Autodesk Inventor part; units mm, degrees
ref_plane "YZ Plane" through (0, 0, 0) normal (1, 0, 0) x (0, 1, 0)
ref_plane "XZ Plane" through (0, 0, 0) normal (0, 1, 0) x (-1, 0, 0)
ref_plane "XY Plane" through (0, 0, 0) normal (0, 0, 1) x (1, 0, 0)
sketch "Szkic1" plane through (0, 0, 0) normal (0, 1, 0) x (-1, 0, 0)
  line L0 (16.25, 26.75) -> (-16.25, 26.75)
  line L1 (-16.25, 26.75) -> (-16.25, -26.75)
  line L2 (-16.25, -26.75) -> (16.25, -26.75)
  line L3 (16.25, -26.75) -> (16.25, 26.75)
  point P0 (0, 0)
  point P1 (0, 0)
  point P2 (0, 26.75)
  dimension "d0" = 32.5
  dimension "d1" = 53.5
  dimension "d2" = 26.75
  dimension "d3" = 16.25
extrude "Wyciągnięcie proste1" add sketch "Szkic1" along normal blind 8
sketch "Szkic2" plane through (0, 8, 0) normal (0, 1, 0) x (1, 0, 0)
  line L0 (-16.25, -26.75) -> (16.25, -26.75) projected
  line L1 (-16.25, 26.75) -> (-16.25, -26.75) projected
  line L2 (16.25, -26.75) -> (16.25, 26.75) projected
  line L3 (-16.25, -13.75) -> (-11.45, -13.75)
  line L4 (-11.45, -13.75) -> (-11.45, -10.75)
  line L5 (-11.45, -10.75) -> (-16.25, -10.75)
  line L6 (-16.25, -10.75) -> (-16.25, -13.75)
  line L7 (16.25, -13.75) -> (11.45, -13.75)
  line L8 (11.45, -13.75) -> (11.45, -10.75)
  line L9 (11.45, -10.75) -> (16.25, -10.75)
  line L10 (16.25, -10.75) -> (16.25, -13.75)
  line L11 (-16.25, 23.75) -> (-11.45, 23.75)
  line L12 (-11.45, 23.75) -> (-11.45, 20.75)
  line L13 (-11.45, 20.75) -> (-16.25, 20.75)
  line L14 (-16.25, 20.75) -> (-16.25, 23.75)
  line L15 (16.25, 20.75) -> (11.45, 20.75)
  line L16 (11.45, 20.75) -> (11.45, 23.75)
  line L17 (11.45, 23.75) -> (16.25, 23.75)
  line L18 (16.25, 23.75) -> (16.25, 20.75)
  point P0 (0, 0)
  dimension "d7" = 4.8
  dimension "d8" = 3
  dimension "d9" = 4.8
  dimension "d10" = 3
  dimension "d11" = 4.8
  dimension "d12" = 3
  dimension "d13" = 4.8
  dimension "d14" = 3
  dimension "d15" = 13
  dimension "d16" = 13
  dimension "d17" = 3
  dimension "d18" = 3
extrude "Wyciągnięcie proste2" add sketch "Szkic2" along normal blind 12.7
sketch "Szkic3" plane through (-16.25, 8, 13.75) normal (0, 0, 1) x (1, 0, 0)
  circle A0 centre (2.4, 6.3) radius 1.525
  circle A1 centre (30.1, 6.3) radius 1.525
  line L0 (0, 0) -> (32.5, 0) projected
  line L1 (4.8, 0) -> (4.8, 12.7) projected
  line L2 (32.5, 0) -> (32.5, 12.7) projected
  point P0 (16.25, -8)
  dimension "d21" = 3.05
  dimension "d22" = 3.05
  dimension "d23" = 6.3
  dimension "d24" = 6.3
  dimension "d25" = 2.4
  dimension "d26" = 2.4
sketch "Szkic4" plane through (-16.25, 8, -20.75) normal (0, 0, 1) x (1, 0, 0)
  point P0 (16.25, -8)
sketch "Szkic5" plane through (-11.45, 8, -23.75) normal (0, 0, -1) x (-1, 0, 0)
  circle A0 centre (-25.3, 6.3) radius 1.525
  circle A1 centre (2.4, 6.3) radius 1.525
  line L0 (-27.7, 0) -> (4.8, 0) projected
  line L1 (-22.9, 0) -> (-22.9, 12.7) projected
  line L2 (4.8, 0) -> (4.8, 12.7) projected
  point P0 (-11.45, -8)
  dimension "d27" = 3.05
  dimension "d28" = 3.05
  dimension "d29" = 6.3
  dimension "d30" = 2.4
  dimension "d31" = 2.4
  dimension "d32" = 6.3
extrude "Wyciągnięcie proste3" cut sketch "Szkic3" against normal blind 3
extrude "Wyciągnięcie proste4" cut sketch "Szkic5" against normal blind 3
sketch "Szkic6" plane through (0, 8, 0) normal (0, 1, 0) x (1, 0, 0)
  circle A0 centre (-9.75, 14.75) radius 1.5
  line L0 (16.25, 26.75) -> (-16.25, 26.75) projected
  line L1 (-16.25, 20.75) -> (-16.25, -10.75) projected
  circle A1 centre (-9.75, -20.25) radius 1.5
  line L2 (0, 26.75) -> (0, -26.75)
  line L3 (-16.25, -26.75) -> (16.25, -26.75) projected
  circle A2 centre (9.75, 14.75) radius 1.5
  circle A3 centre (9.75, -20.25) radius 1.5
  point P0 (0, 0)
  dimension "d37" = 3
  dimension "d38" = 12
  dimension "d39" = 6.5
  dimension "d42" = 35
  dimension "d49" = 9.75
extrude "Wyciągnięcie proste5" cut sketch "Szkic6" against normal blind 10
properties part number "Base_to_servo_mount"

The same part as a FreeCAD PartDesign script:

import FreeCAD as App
import Part
import Sketcher

V = App.Vector

doc = App.newDocument("Part")
params = doc.addObject("Spreadsheet::Sheet", "Params")
for row, (alias, value) in enumerate([
    ("sketch1_width", "32.5 mm"),
    ("sketch1_height", "53.5 mm"),
    ("pad1_length", "8 mm"),
    ("sketch2_height", "3 mm"),
    ("sketch2_width", "4.8 mm"),
    ("pad2_length", "12.7 mm"),
    ("sketch3_diameter", "3.05 mm"),
    ("pocket1_length", "3 mm"),
    ("sketch4_diameter", "3.05 mm"),
    ("pocket2_length", "3 mm"),
    ("sketch5_diameter", "3 mm"),
    ("pocket3_length", "10 mm"),
], start=1):
    params.set(f"A{row}", alias)
    params.set(f"B{row}", "=" + value)
    params.setAlias(f"B{row}", alias)

body = doc.addObject("PartDesign::Body", "Body")

# Sketch on XZ plane
sketch1 = body.newObject("Sketcher::SketchObject", "Sketch")
sketch1.AttachmentSupport = (doc.getObject("XZ_Plane"), [""])
sketch1.MapMode = "FlatFace"
sketch1.addGeometry(Part.LineSegment(V(-16, -27, 0), V(-16, 27, 0)), False)
sketch1.addGeometry(Part.LineSegment(V(-16, 27, 0), V(16, 27, 0)), False)
sketch1.addGeometry(Part.LineSegment(V(16, 27, 0), V(16, -27, 0)), False)
sketch1.addGeometry(Part.LineSegment(V(16, -27, 0), V(-16, -27, 0)), False)
sketch1.addConstraint(Sketcher.Constraint("Coincident", 0, 2, 1, 1))
sketch1.addConstraint(Sketcher.Constraint("Coincident", 1, 2, 2, 1))
sketch1.addConstraint(Sketcher.Constraint("Coincident", 2, 2, 3, 1))
sketch1.addConstraint(Sketcher.Constraint("Coincident", 3, 2, 0, 1))
sketch1.addConstraint(Sketcher.Constraint("Vertical", 0))
sketch1.addConstraint(Sketcher.Constraint("Horizontal", 1))
sketch1.addConstraint(Sketcher.Constraint("Vertical", 2))
sketch1.addConstraint(Sketcher.Constraint("Horizontal", 3))
sketch1.addConstraint(Sketcher.Constraint("Symmetric", 0, 2, 2, 2, -1, 1))
sketch1.addConstraint(Sketcher.Constraint("DistanceX", 1, 1, 1, 2, 32.5))
sketch1.addConstraint(Sketcher.Constraint("DistanceY", 0, 1, 0, 2, 53.5))
sketch1.setExpression("Constraints[9]", "Params.sketch1_width")
sketch1.setExpression("Constraints[10]", "Params.sketch1_height")
pad1 = body.newObject("PartDesign::Pad", "Pad")
pad1.Profile = sketch1
pad1.setExpression("Length", "Params.pad1_length")
pad1.Reversed = True

# Sketch on XZ plane
sketch2 = body.newObject("Sketcher::SketchObject", "Sketch001")
sketch2.AttachmentSupport = (doc.getObject("XZ_Plane"), [""])
sketch2.MapMode = "FlatFace"
sketch2.AttachmentOffset = App.Placement(V(0, 0, -8), App.Rotation())
sketch2.addGeometry(Part.LineSegment(V(11.4, -20.8, 0), V(16.2, -20.8, 0)), False)
sketch2.addGeometry(Part.LineSegment(V(16.2, -20.8, 0), V(16.2, -23.8, 0)), False)
sketch2.addGeometry(Part.LineSegment(V(16.2, -23.8, 0), V(11.4, -23.8, 0)), False)
sketch2.addGeometry(Part.LineSegment(V(11.4, -23.8, 0), V(11.4, -20.8, 0)), False)
sketch2.addGeometry(Part.LineSegment(V(11.4, 13.8, 0), V(16.2, 13.8, 0)), False)
sketch2.addGeometry(Part.LineSegment(V(16.2, 13.8, 0), V(16.2, 10.8, 0)), False)
sketch2.addGeometry(Part.LineSegment(V(16.2, 10.8, 0), V(11.4, 10.8, 0)), False)
sketch2.addGeometry(Part.LineSegment(V(11.4, 10.8, 0), V(11.4, 13.8, 0)), False)
sketch2.addGeometry(Part.LineSegment(V(-16.2, -23.8, 0), V(-16.2, -20.8, 0)), False)
sketch2.addGeometry(Part.LineSegment(V(-16.2, -20.8, 0), V(-11.4, -20.8, 0)), False)
sketch2.addGeometry(Part.LineSegment(V(-11.4, -20.8, 0), V(-11.4, -23.8, 0)), False)
sketch2.addGeometry(Part.LineSegment(V(-11.4, -23.8, 0), V(-16.2, -23.8, 0)), False)
sketch2.addGeometry(Part.LineSegment(V(-16.2, 10.8, 0), V(-16.2, 13.8, 0)), False)
sketch2.addGeometry(Part.LineSegment(V(-16.2, 13.8, 0), V(-11.4, 13.8, 0)), False)
sketch2.addGeometry(Part.LineSegment(V(-11.4, 13.8, 0), V(-11.4, 10.8, 0)), False)
sketch2.addGeometry(Part.LineSegment(V(-11.4, 10.8, 0), V(-16.2, 10.8, 0)), False)
sketch2.addConstraint(Sketcher.Constraint("Coincident", 0, 2, 1, 1))
sketch2.addConstraint(Sketcher.Constraint("Coincident", 1, 2, 2, 1))
sketch2.addConstraint(Sketcher.Constraint("Coincident", 2, 2, 3, 1))
sketch2.addConstraint(Sketcher.Constraint("Coincident", 3, 2, 0, 1))
sketch2.addConstraint(Sketcher.Constraint("Coincident", 4, 2, 5, 1))
sketch2.addConstraint(Sketcher.Constraint("Coincident", 5, 2, 6, 1))
sketch2.addConstraint(Sketcher.Constraint("Coincident", 6, 2, 7, 1))
sketch2.addConstraint(Sketcher.Constraint("Coincident", 7, 2, 4, 1))
sketch2.addConstraint(Sketcher.Constraint("Coincident", 8, 2, 9, 1))
sketch2.addConstraint(Sketcher.Constraint("Coincident", 9, 2, 10, 1))
sketch2.addConstraint(Sketcher.Constraint("Coincident", 10, 2, 11, 1))
sketch2.addConstraint(Sketcher.Constraint("Coincident", 11, 2, 8, 1))
sketch2.addConstraint(Sketcher.Constraint("Coincident", 12, 2, 13, 1))
sketch2.addConstraint(Sketcher.Constraint("Coincident", 13, 2, 14, 1))
sketch2.addConstraint(Sketcher.Constraint("Coincident", 14, 2, 15, 1))
sketch2.addConstraint(Sketcher.Constraint("Coincident", 15, 2, 12, 1))
sketch2.addConstraint(Sketcher.Constraint("Horizontal", 0))
sketch2.addConstraint(Sketcher.Constraint("Vertical", 1))
sketch2.addConstraint(Sketcher.Constraint("Horizontal", 2))
sketch2.addConstraint(Sketcher.Constraint("Vertical", 3))
sketch2.addConstraint(Sketcher.Constraint("Horizontal", 4))
sketch2.addConstraint(Sketcher.Constraint("Vertical", 5))
sketch2.addConstraint(Sketcher.Constraint("Horizontal", 6))
sketch2.addConstraint(Sketcher.Constraint("Vertical", 7))
sketch2.addConstraint(Sketcher.Constraint("Vertical", 8))
sketch2.addConstraint(Sketcher.Constraint("Horizontal", 9))
sketch2.addConstraint(Sketcher.Constraint("Vertical", 10))
sketch2.addConstraint(Sketcher.Constraint("Horizontal", 11))
sketch2.addConstraint(Sketcher.Constraint("Vertical", 12))
sketch2.addConstraint(Sketcher.Constraint("Horizontal", 13))
sketch2.addConstraint(Sketcher.Constraint("Vertical", 14))
sketch2.addConstraint(Sketcher.Constraint("Horizontal", 15))
sketch2.addConstraint(Sketcher.Constraint("Symmetric", 0, 2, 8, 2, -2))
sketch2.addConstraint(Sketcher.Constraint("Symmetric", 2, 2, 10, 2, -2))
sketch2.addConstraint(Sketcher.Constraint("Symmetric", 4, 2, 12, 2, -2))
sketch2.addConstraint(Sketcher.Constraint("Symmetric", 6, 2, 14, 2, -2))
sketch2.addConstraint(Sketcher.Constraint("Vertical", 1, 2, 4, 2))
sketch2.addConstraint(Sketcher.Constraint("Vertical", 3, 2, 6, 2))
sketch2.addConstraint(Sketcher.Constraint("Equal", 3, 5))
sketch2.addConstraint(Sketcher.Constraint("DistanceY", 1, 2, 1, 1, 3.0))
sketch2.addConstraint(Sketcher.Constraint("DistanceX", 0, 1, 0, 2, 4.8))
sketch2.addConstraint(Sketcher.Constraint("DistanceY", 0, 2, 4, 2, 34.5))
sketch2.addConstraint(Sketcher.Constraint("DistanceX", 8, 2, 3, 2, 27.7))
sketch2.addConstraint(Sketcher.Constraint("DistanceY", 0, 2, -1, 1, 20.75))
sketch2.setExpression("Constraints[39]", "Params.sketch2_height")
sketch2.setExpression("Constraints[40]", "Params.sketch2_width")
pad2 = body.newObject("PartDesign::Pad", "Pad001")
pad2.Profile = sketch2
pad2.setExpression("Length", "Params.pad2_length")
pad2.Reversed = True

# Sketch on XY plane
sketch3 = body.newObject("Sketcher::SketchObject", "Sketch002")
sketch3.AttachmentSupport = (doc.getObject("XY_Plane"), [""])
sketch3.MapMode = "FlatFace"
sketch3.AttachmentOffset = App.Placement(V(0, 0, 13.75), App.Rotation())
sketch3.addGeometry(Part.Circle(V(-13.8, 14.3, 0), V(0, 0, 1), 1.5), False)
sketch3.addGeometry(Part.Circle(V(13.8, 14.3, 0), V(0, 0, 1), 1.5), False)
sketch3.addConstraint(Sketcher.Constraint("Equal", 0, 1))
sketch3.addConstraint(Sketcher.Constraint("Symmetric", 0, 3, 1, 3, -2))
sketch3.addConstraint(Sketcher.Constraint("Diameter", 0, 3.05))
sketch3.addConstraint(Sketcher.Constraint("DistanceY", -1, 1, 0, 3, 14.3))
sketch3.addConstraint(Sketcher.Constraint("DistanceX", 0, 3, 1, 3, 27.7))
sketch3.setExpression("Constraints[2]", "Params.sketch3_diameter")
pocket1 = body.newObject("PartDesign::Pocket", "Pocket")
pocket1.Profile = sketch3
pocket1.setExpression("Length", "Params.pocket1_length")

# Sketch on XY plane
sketch4 = body.newObject("Sketcher::SketchObject", "Sketch003")
sketch4.AttachmentSupport = (doc.getObject("XY_Plane"), [""])
sketch4.MapMode = "FlatFace"
sketch4.AttachmentOffset = App.Placement(V(0, 0, -23.75), App.Rotation())
sketch4.addGeometry(Part.Circle(V(13.8, 14.3, 0), V(0, 0, 1), 1.5), False)
sketch4.addGeometry(Part.Circle(V(-13.8, 14.3, 0), V(0, 0, 1), 1.5), False)
sketch4.addConstraint(Sketcher.Constraint("Equal", 0, 1))
sketch4.addConstraint(Sketcher.Constraint("Symmetric", 0, 3, 1, 3, -2))
sketch4.addConstraint(Sketcher.Constraint("Diameter", 0, 3.05))
sketch4.addConstraint(Sketcher.Constraint("DistanceY", -1, 1, 0, 3, 14.3))
sketch4.addConstraint(Sketcher.Constraint("DistanceX", 1, 3, 0, 3, 27.7))
sketch4.setExpression("Constraints[2]", "Params.sketch4_diameter")
pocket2 = body.newObject("PartDesign::Pocket", "Pocket001")
pocket2.Profile = sketch4
pocket2.setExpression("Length", "Params.pocket2_length")
pocket2.Reversed = True

# Sketch on XZ plane
sketch5 = body.newObject("Sketcher::SketchObject", "Sketch004")
sketch5.AttachmentSupport = (doc.getObject("XZ_Plane"), [""])
sketch5.MapMode = "FlatFace"
sketch5.AttachmentOffset = App.Placement(V(0, 0, -8), App.Rotation())
sketch5.addGeometry(Part.Circle(V(-9.8, -14.8, 0), V(0, 0, 1), 1.5), False)
sketch5.addGeometry(Part.Circle(V(-9.8, 20.2, 0), V(0, 0, 1), 1.5), False)
sketch5.addGeometry(Part.Circle(V(9.8, -14.8, 0), V(0, 0, 1), 1.5), False)
sketch5.addGeometry(Part.Circle(V(9.8, 20.2, 0), V(0, 0, 1), 1.5), False)
sketch5.addConstraint(Sketcher.Constraint("Equal", 0, 1))
sketch5.addConstraint(Sketcher.Constraint("Equal", 1, 2))
sketch5.addConstraint(Sketcher.Constraint("Equal", 2, 3))
sketch5.addConstraint(Sketcher.Constraint("Symmetric", 0, 3, 2, 3, -2))
sketch5.addConstraint(Sketcher.Constraint("Symmetric", 1, 3, 3, 3, -2))
sketch5.addConstraint(Sketcher.Constraint("Vertical", 0, 3, 1, 3))
sketch5.addConstraint(Sketcher.Constraint("Diameter", 0, 3.0))
sketch5.addConstraint(Sketcher.Constraint("DistanceY", 0, 3, 1, 3, 35.0))
sketch5.addConstraint(Sketcher.Constraint("DistanceX", 0, 3, -1, 1, 9.75))
sketch5.addConstraint(Sketcher.Constraint("DistanceY", 0, 3, -1, 1, 14.75))
sketch5.setExpression("Constraints[6]", "Params.sketch5_diameter")
pocket3 = body.newObject("PartDesign::Pocket", "Pocket002")
pocket3.Profile = sketch5
pocket3.setExpression("Length", "Params.pocket3_length")
pocket3.Reversed = True

doc.recompute()
